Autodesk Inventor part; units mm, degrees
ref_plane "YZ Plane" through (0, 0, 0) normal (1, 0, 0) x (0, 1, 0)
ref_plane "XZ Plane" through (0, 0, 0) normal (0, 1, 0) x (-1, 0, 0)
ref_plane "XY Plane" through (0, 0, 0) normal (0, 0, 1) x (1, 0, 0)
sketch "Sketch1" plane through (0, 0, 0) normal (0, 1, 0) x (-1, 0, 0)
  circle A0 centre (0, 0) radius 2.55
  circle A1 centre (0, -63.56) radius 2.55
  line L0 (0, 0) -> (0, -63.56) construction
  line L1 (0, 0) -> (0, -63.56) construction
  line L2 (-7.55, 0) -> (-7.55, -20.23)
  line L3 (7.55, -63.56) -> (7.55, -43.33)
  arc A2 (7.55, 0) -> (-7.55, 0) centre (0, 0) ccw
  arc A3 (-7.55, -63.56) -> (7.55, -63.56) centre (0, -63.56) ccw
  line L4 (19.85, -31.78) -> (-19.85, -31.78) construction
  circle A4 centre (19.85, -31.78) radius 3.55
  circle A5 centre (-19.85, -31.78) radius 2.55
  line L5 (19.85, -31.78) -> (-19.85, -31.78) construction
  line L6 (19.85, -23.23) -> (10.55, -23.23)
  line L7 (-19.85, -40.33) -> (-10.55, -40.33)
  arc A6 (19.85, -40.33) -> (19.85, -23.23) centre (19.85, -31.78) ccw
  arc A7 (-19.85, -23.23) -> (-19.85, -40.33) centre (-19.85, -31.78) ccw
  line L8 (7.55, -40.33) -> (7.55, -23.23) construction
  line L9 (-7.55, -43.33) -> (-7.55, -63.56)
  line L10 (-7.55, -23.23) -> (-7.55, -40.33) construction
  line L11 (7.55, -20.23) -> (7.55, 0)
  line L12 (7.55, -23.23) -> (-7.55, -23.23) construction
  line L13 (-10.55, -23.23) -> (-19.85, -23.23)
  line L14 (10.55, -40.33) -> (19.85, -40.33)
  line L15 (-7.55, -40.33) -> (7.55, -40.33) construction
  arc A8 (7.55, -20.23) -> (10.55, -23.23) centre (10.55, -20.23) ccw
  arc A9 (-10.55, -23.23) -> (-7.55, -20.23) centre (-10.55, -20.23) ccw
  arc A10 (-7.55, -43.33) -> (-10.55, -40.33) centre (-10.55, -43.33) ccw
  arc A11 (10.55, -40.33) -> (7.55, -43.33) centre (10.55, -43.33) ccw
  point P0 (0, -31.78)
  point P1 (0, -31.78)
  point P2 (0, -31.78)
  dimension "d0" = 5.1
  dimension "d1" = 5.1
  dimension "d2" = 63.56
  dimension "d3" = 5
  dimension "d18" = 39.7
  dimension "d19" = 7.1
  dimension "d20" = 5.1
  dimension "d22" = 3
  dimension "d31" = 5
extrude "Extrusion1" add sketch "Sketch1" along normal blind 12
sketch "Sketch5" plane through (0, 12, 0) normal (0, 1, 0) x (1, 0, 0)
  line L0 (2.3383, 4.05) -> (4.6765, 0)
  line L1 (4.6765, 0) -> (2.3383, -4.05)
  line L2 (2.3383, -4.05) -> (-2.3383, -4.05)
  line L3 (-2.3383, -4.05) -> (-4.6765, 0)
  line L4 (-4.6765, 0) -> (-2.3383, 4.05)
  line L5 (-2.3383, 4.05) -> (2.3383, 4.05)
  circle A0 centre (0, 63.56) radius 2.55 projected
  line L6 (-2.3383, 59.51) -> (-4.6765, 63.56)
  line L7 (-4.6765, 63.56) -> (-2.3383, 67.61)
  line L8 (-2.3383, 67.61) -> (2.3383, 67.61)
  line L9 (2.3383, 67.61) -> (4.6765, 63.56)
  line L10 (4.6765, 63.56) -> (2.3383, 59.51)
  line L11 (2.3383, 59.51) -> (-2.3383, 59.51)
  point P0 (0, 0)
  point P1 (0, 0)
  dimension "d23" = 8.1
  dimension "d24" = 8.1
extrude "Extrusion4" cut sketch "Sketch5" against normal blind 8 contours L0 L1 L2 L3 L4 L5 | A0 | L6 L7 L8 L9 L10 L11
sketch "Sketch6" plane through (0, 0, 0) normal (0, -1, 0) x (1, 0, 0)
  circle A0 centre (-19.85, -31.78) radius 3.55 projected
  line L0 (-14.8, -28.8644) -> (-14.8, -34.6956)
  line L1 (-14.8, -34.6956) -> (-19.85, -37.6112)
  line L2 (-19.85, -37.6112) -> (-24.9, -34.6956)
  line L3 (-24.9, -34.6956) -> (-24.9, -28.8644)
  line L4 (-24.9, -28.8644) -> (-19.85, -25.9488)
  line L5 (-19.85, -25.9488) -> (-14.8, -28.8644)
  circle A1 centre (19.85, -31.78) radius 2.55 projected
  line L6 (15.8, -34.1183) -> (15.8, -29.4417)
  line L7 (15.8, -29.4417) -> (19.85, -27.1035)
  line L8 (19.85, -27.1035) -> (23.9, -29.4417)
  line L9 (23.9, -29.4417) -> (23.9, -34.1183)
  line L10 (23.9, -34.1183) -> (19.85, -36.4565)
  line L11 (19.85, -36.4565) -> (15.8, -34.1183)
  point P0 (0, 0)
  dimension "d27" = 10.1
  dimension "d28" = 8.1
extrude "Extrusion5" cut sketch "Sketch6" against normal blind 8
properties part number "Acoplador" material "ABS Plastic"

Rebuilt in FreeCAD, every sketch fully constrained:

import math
import FreeCAD as App
import Part
import Sketcher

V = App.Vector
Q = App.Units.Quantity

doc = App.newDocument("Part")
params = doc.addObject("Spreadsheet::Sheet", "Params")
for row, (alias, value) in enumerate([
    ("sketch1_radius", "3 mm"),
    ("sketch1_diameter", "5.1 mm"),
    ("sketch1_diameter2", "7.1 mm"),
    ("sketch1_radius2", "7.55 mm"),
    ("sketch1_radius3", "8.55 mm"),
    ("pad1_length", "12 mm"),
    ("pocket1_length", "8 mm"),
    ("sketch3_diameter", "7.1 mm"),
    ("sketch3_diameter2", "5.1 mm"),
    ("pocket2_length", "8 mm"),
], start=1):
    params.set(f"A{row}", alias)
    params.set(f"B{row}", "=" + value)
    params.setAlias(f"B{row}", alias)

body = doc.addObject("PartDesign::Body", "Body")

# Sketch on XZ plane
sketch1 = doc.addObject("Sketcher::SketchObject", "Sketch")
body.addObject(sketch1)
sketch1.AttachmentSupport = (doc.XZ_Plane, [""])
sketch1.MapMode = "FlatFace"
sketch1.addGeometry(Part.ArcOfCircle(Part.Circle(V(0, 0, 0), V(0, 0, 1), 7.5), math.radians(0), math.radians(180)), False)
sketch1.addGeometry(Part.LineSegment(V(7.5, 0, 0), V(7.5, -20.2, 0)), False)
sketch1.addGeometry(Part.ArcOfCircle(Part.Circle(V(10.6, -20.2, 0), V(0, 0, 1), 3), math.radians(180), math.radians(270)), False)
sketch1.addGeometry(Part.LineSegment(V(10.6, -23.2, 0), V(19.9, -23.2, 0)), False)
sketch1.addGeometry(Part.ArcOfCircle(Part.Circle(V(19.9, -31.8, 0), V(0, 0, 1), 8.6), math.radians(-90), math.radians(90)), False)
sketch1.addGeometry(Part.LineSegment(V(19.9, -40.3, 0), V(10.6, -40.3, 0)), False)
sketch1.addGeometry(Part.ArcOfCircle(Part.Circle(V(10.6, -43.3, 0), V(0, 0, 1), 3), math.radians(90), math.radians(180)), False)
sketch1.addGeometry(Part.LineSegment(V(7.5, -43.3, 0), V(7.5, -63.6, 0)), False)
sketch1.addGeometry(Part.ArcOfCircle(Part.Circle(V(0, -63.6, 0), V(0, 0, 1), 7.5), math.radians(180), math.radians(360)), False)
sketch1.addGeometry(Part.LineSegment(V(-7.5, -63.6, 0), V(-7.5, -43.3, 0)), False)
sketch1.addGeometry(Part.ArcOfCircle(Part.Circle(V(-10.6, -43.3, 0), V(0, 0, 1), 3), math.radians(0), math.radians(90)), False)
sketch1.addGeometry(Part.LineSegment(V(-10.6, -40.3, 0), V(-19.9, -40.3, 0)), False)
sketch1.addGeometry(Part.ArcOfCircle(Part.Circle(V(-19.9, -31.8, 0), V(0, 0, 1), 8.5), math.radians(90), math.radians(270)), False)
sketch1.addGeometry(Part.LineSegment(V(-19.9, -23.2, 0), V(-10.6, -23.2, 0)), False)
sketch1.addGeometry(Part.ArcOfCircle(Part.Circle(V(-10.6, -20.2, 0), V(0, 0, 1), 3), math.radians(-90), math.radians(0)), False)
sketch1.addGeometry(Part.LineSegment(V(-7.5, -20.2, 0), V(-7.5, 0, 0)), False)
sketch1.addGeometry(Part.Circle(V(0, -63.6, 0), V(0, 0, 1), 2.5), False)
sketch1.addGeometry(Part.Circle(V(19.9, -31.8, 0), V(0, 0, 1), 2.5), False)
sketch1.addGeometry(Part.Circle(V(-19.9, -31.8, 0), V(0, 0, 1), 3.5), False)
sketch1.addGeometry(Part.Circle(V(0, 0, 0), V(0, 0, 1), 2.5), False)
sketch1.addConstraint(Sketcher.Constraint("Tangent", 0, 1, 1, 1))
sketch1.addConstraint(Sketcher.Constraint("Tangent", 1, 2, 2, 1))
sketch1.addConstraint(Sketcher.Constraint("Tangent", 2, 2, 3, 1))
sketch1.addConstraint(Sketcher.Constraint("Tangent", 3, 2, 4, 2))
sketch1.addConstraint(Sketcher.Constraint("Tangent", 4, 1, 5, 1))
sketch1.addConstraint(Sketcher.Constraint("Tangent", 5, 2, 6, 1))
sketch1.addConstraint(Sketcher.Constraint("Tangent", 6, 2, 7, 1))
sketch1.addConstraint(Sketcher.Constraint("Tangent", 7, 2, 8, 2))
sketch1.addConstraint(Sketcher.Constraint("Tangent", 8, 1, 9, 1))
sketch1.addConstraint(Sketcher.Constraint("Tangent", 9, 2, 10, 1))
sketch1.addConstraint(Sketcher.Constraint("Tangent", 10, 2, 11, 1))
sketch1.addConstraint(Sketcher.Constraint("Tangent", 11, 2, 12, 2))
sketch1.addConstraint(Sketcher.Constraint("Tangent", 12, 1, 13, 1))
sketch1.addConstraint(Sketcher.Constraint("Tangent", 13, 2, 14, 1))
sketch1.addConstraint(Sketcher.Constraint("Tangent", 14, 2, 15, 1))
sketch1.addConstraint(Sketcher.Constraint("Tangent", 15, 2, 0, 2))
sketch1.addConstraint(Sketcher.Constraint("Vertical", 1))
sketch1.addConstraint(Sketcher.Constraint("Horizontal", 3))
sketch1.addConstraint(Sketcher.Constraint("Horizontal", 5))
sketch1.addConstraint(Sketcher.Constraint("Vertical", 7))
sketch1.addConstraint(Sketcher.Constraint("Vertical", 9))
sketch1.addConstraint(Sketcher.Constraint("Horizontal", 11))
sketch1.addConstraint(Sketcher.Constraint("Horizontal", 13))
sketch1.addConstraint(Sketcher.Constraint("Vertical", 15))
sketch1.addConstraint(Sketcher.Constraint("Coincident", 0, 3, -1, 1))
sketch1.addConstraint(Sketcher.Constraint("Coincident", 19, 3, -1, 1))
sketch1.addConstraint(Sketcher.Constraint("Coincident", 16, 3, 8, 3))
sketch1.addConstraint(Sketcher.Constraint("Coincident", 17, 3, 4, 3))
sketch1.addConstraint(Sketcher.Constraint("Coincident", 18, 3, 12, 3))
sketch1.addConstraint(Sketcher.Constraint("Equal", 2, 6))
sketch1.addConstraint(Sketcher.Constraint("Equal", 0, 8))
sketch1.addConstraint(Sketcher.Constraint("Equal", 6, 10))
sketch1.addConstraint(Sketcher.Constraint("Equal", 4, 12))
sketch1.addConstraint(Sketcher.Constraint("Equal", 10, 14))
sketch1.addConstraint(Sketcher.Constraint("Equal", 16, 17))
sketch1.addConstraint(Sketcher.Constraint("Equal", 17, 19))
sketch1.addConstraint(Sketcher.Constraint("Symmetric", 6, 3, 10, 3, -2))
sketch1.addConstraint(Sketcher.Constraint("Equal", 5, 11))
sketch1.addConstraint(Sketcher.Constraint("Equal", 1, 7))
sketch1.addConstraint(Sketcher.Constraint("Radius", 2, 3.0))
sketch1.addConstraint(Sketcher.Constraint("Diameter", 16, 5.1))
sketch1.addConstraint(Sketcher.Constraint("Diameter", 18, 7.1))
sketch1.addConstraint(Sketcher.Constraint("DistanceY", 8, 3, -1, 1, 63.56))
sketch1.addConstraint(Sketcher.Constraint("Radius", 0, 7.55))
sketch1.addConstraint(Sketcher.Constraint("Radius", 4, 8.55))
sketch1.addConstraint(Sketcher.Constraint("DistanceX", 3, 1, 3, 2, 9.3))
sketch1.setExpression("Constraints[39]", "Params.sketch1_radius")
sketch1.setExpression("Constraints[40]", "Params.sketch1_diameter")
sketch1.setExpression("Constraints[41]", "Params.sketch1_diameter2")
sketch1.setExpression("Constraints[43]", "Params.sketch1_radius2")
sketch1.setExpression("Constraints[44]", "Params.sketch1_radius3")
pad1 = doc.addObject("PartDesign::Pad", "Pad")
body.addObject(pad1)
pad1.Profile = sketch1
pad1.setExpression("Length", "Params.pad1_length")
pad1.Reversed = True

# Sketch on XZ plane
sketch2 = doc.addObject("Sketcher::SketchObject", "Sketch001")
body.addObject(sketch2)
sketch2.AttachmentSupport = (doc.XZ_Plane, [""])
sketch2.MapMode = "FlatFace"
sketch2.AttachmentOffset = App.Placement(V(0, 0, -12), App.Rotation())
sketch2.addGeometry(Part.LineSegment(V(4.7, 0, 0), V(2.3, -4, 0)), False)
sketch2.addGeometry(Part.LineSegment(V(2.3, -4, 0), V(-2.3, -4, 0)), False)
sketch2.addGeometry(Part.LineSegment(V(-2.3, -4, 0), V(-4.7, 0, 0)), False)
sketch2.addGeometry(Part.LineSegment(V(-4.7, 0, 0), V(-2.3, 4, 0)), False)
sketch2.addGeometry(Part.LineSegment(V(-2.3, 4, 0), V(2.3, 4, 0)), False)
sketch2.addGeometry(Part.LineSegment(V(2.3, 4, 0), V(4.7, 0, 0)), False)
sketch2.addGeometry(Part.LineSegment(V(-4.7, -63.6, 0), V(-2.3, -59.5, 0)), False)
sketch2.addGeometry(Part.LineSegment(V(-2.3, -59.5, 0), V(2.3, -59.5, 0)), False)
sketch2.addGeometry(Part.LineSegment(V(2.3, -59.5, 0), V(4.7, -63.6, 0)), False)
sketch2.addGeometry(Part.LineSegment(V(4.7, -63.6, 0), V(2.3, -67.6, 0)), False)
sketch2.addGeometry(Part.LineSegment(V(2.3, -67.6, 0), V(-2.3, -67.6, 0)), False)
sketch2.addGeometry(Part.LineSegment(V(-2.3, -67.6, 0), V(-4.7, -63.6, 0)), False)
sketch2.addConstraint(Sketcher.Constraint("Coincident", 0, 2, 1, 1))
sketch2.addConstraint(Sketcher.Constraint("Coincident", 1, 2, 2, 1))
sketch2.addConstraint(Sketcher.Constraint("Coincident", 2, 2, 3, 1))
sketch2.addConstraint(Sketcher.Constraint("Coincident", 3, 2, 4, 1))
sketch2.addConstraint(Sketcher.Constraint("Coincident", 4, 2, 5, 1))
sketch2.addConstraint(Sketcher.Constraint("Coincident", 5, 2, 0, 1))
sketch2.addConstraint(Sketcher.Constraint("Coincident", 6, 2, 7, 1))
sketch2.addConstraint(Sketcher.Constraint("Coincident", 7, 2, 8, 1))
sketch2.addConstraint(Sketcher.Constraint("Coincident", 8, 2, 9, 1))
sketch2.addConstraint(Sketcher.Constraint("Coincident", 9, 2, 10, 1))
sketch2.addConstraint(Sketcher.Constraint("Coincident", 10, 2, 11, 1))
sketch2.addConstraint(Sketcher.Constraint("Coincident", 11, 2, 6, 1))
sketch2.addConstraint(Sketcher.Constraint("Horizontal", 1))
sketch2.addConstraint(Sketcher.Constraint("Horizontal", 4))
sketch2.addConstraint(Sketcher.Constraint("Horizontal", 7))
sketch2.addConstraint(Sketcher.Constraint("Horizontal", 10))
sketch2.addConstraint(Sketcher.Constraint("Symmetric", 0, 2, 3, 2, -1, 1))
sketch2.addConstraint(Sketcher.Constraint("Symmetric", 2, 2, 5, 2, -1, 1))
sketch2.addConstraint(Sketcher.Constraint("Symmetric", 8, 2, 11, 2, -2))
sketch2.addConstraint(Sketcher.Constraint("PointOnObject", 2, 2, -1))
sketch2.addConstraint(Sketcher.Constraint("Parallel", 2, 5))
sketch2.addConstraint(Sketcher.Constraint("Parallel", 3, 6))
sketch2.addConstraint(Sketcher.Constraint("Parallel", 5, 8))
sketch2.addConstraint(Sketcher.Constraint("Parallel", 6, 9))
sketch2.addConstraint(Sketcher.Constraint("Parallel", 8, 11))
sketch2.addConstraint(Sketcher.Constraint("Vertical", 1, 2, 3, 2))
sketch2.addConstraint(Sketcher.Constraint("Vertical", 3, 2, 6, 2))
sketch2.addConstraint(Sketcher.Constraint("Vertical", 5, 2, 8, 2))
sketch2.addConstraint(Sketcher.Constraint("Vertical", 7, 2, 9, 2))
sketch2.addConstraint(Sketcher.Constraint("DistanceY", 1, 2, 3, 2, 8.1))
sketch2.addConstraint(Sketcher.Constraint("Angle", 0, Q("-119.9993 deg")))
sketch2.addConstraint(Sketcher.Constraint("DistanceY", 6, 2, -1, 1, 59.51))
sketch2.addConstraint(Sketcher.Constraint("DistanceX", 1, 2, 1, 1, 4.6766))
pocket1 = doc.addObject("PartDesign::Pocket", "Pocket")
body.addObject(pocket1)
pocket1.Profile = sketch2
pocket1.setExpression("Length", "Params.pocket1_length")
pocket1.Reversed = True

# Sketch on XZ plane
sketch3 = doc.addObject("Sketcher::SketchObject", "Sketch002")
body.addObject(sketch3)
sketch3.AttachmentSupport = (doc.XZ_Plane, [""])
sketch3.MapMode = "FlatFace"
sketch3.addGeometry(Part.LineSegment(V(-14.8, -34.7, 0), V(-14.8, -28.9, 0)), False)
sketch3.addGeometry(Part.LineSegment(V(-14.8, -28.9, 0), V(-19.9, -25.9, 0)), False)
sketch3.addGeometry(Part.LineSegment(V(-19.9, -25.9, 0), V(-24.9, -28.9, 0)), False)
sketch3.addGeometry(Part.LineSegment(V(-24.9, -28.9, 0), V(-24.9, -34.7, 0)), False)
sketch3.addGeometry(Part.LineSegment(V(-24.9, -34.7, 0), V(-19.9, -37.6, 0)), False)
sketch3.addGeometry(Part.LineSegment(V(-19.9, -37.6, 0), V(-14.8, -34.7, 0)), False)
sketch3.addGeometry(Part.Circle(V(-19.9, -31.8, 0), V(0, 0, 1), 3.5), False)
sketch3.addGeometry(Part.LineSegment(V(15.8, -29.4, 0), V(15.8, -34.1, 0)), False)
sketch3.addGeometry(Part.LineSegment(V(15.8, -34.1, 0), V(19.9, -36.5, 0)), False)
sketch3.addGeometry(Part.LineSegment(V(19.9, -36.5, 0), V(23.9, -34.1, 0)), False)
sketch3.addGeometry(Part.LineSegment(V(23.9, -34.1, 0), V(23.9, -29.4, 0)), False)
sketch3.addGeometry(Part.LineSegment(V(23.9, -29.4, 0), V(19.9, -27.1, 0)), False)
sketch3.addGeometry(Part.LineSegment(V(19.9, -27.1, 0), V(15.8, -29.4, 0)), False)
sketch3.addGeometry(Part.Circle(V(19.9, -31.8, 0), V(0, 0, 1), 2.5), False)
sketch3.addConstraint(Sketcher.Constraint("Coincident", 0, 2, 1, 1))
sketch3.addConstraint(Sketcher.Constraint("Coincident", 1, 2, 2, 1))
sketch3.addConstraint(Sketcher.Constraint("Coincident", 2, 2, 3, 1))
sketch3.addConstraint(Sketcher.Constraint("Coincident", 3, 2, 4, 1))
sketch3.addConstraint(Sketcher.Constraint("Coincident", 4, 2, 5, 1))
sketch3.addConstraint(Sketcher.Constraint("Coincident", 5, 2, 0, 1))
sketch3.addConstraint(Sketcher.Constraint("Coincident", 7, 2, 8, 1))
sketch3.addConstraint(Sketcher.Constraint("Coincident", 8, 2, 9, 1))
sketch3.addConstraint(Sketcher.Constraint("Coincident", 9, 2, 10, 1))
sketch3.addConstraint(Sketcher.Constraint("Coincident", 10, 2, 11, 1))
sketch3.addConstraint(Sketcher.Constraint("Coincident", 11, 2, 12, 1))
sketch3.addConstraint(Sketcher.Constraint("Coincident", 12, 2, 7, 1))
sketch3.addConstraint(Sketcher.Constraint("Vertical", 0))
sketch3.addConstraint(Sketcher.Constraint("Vertical", 3))
sketch3.addConstraint(Sketcher.Constraint("Vertical", 7))
sketch3.addConstraint(Sketcher.Constraint("Vertical", 10))
sketch3.addConstraint(Sketcher.Constraint("Symmetric", 6, 3, 13, 3, -2))
sketch3.addConstraint(Sketcher.Constraint("Parallel", 1, 4))
sketch3.addConstraint(Sketcher.Constraint("Parallel", 2, 5))
sketch3.addConstraint(Sketcher.Constraint("Parallel", 4, 8))
sketch3.addConstraint(Sketcher.Constraint("Parallel", 5, 9))
sketch3.addConstraint(Sketcher.Constraint("Parallel", 8, 11))
sketch3.addConstraint(Sketcher.Constraint("Parallel", 9, 12))
sketch3.addConstraint(Sketcher.Constraint("Horizontal", 0, 2, 2, 2))
sketch3.addConstraint(Sketcher.Constraint("Horizontal", 3, 2, 5, 2))
sketch3.addConstraint(Sketcher.Constraint("Horizontal", 7, 2, 9, 2))
sketch3.addConstraint(Sketcher.Constraint("Horizontal", 10, 2, 12, 2))
sketch3.addConstraint(Sketcher.Constraint("Vertical", 6, 3, 1, 2))
sketch3.addConstraint(Sketcher.Constraint("Vertical", 1, 2, 4, 2))
sketch3.addConstraint(Sketcher.Constraint("Vertical", 13, 3, 8, 2))
sketch3.addConstraint(Sketcher.Constraint("Diameter", 6, 7.1))
sketch3.addConstraint(Sketcher.Constraint("Diameter", 13, 5.1))
sketch3.addConstraint(Sketcher.Constraint("DistanceX", 2, 2, 0, 2, 10.1))
sketch3.addConstraint(Sketcher.Constraint("DistanceX", 7, 2, 9, 2, 8.1))
sketch3.addConstraint(Sketcher.Constraint("Angle", 1, Q("150.0002 deg")))
sketch3.addConstraint(Sketcher.Constraint("DistanceX", 0, 2, -1, 1, 14.8))
sketch3.addConstraint(Sketcher.Constraint("DistanceY", 6, 3, -1, 1, 31.78))
sketch3.addConstraint(Sketcher.Constraint("DistanceY", 0, 1, 0, 2, 5.8312))
sketch3.addConstraint(Sketcher.Constraint("DistanceY", 7, 2, 7, 1, 4.6766))
sketch3.addConstraint(Sketcher.Constraint("DistanceY", 7, 2, 0, 2, 5.254))
sketch3.addConstraint(Sketcher.Constraint("DistanceY", 0, 2, -1, 1, 28.8644))
sketch3.setExpression("Constraints[30]", "Params.sketch3_diameter")
sketch3.setExpression("Constraints[31]", "Params.sketch3_diameter2")
pocket2 = doc.addObject("PartDesign::Pocket", "Pocket001")
body.addObject(pocket2)
pocket2.Profile = sketch3
pocket2.setExpression("Length", "Params.pocket2_length")

doc.recompute()
